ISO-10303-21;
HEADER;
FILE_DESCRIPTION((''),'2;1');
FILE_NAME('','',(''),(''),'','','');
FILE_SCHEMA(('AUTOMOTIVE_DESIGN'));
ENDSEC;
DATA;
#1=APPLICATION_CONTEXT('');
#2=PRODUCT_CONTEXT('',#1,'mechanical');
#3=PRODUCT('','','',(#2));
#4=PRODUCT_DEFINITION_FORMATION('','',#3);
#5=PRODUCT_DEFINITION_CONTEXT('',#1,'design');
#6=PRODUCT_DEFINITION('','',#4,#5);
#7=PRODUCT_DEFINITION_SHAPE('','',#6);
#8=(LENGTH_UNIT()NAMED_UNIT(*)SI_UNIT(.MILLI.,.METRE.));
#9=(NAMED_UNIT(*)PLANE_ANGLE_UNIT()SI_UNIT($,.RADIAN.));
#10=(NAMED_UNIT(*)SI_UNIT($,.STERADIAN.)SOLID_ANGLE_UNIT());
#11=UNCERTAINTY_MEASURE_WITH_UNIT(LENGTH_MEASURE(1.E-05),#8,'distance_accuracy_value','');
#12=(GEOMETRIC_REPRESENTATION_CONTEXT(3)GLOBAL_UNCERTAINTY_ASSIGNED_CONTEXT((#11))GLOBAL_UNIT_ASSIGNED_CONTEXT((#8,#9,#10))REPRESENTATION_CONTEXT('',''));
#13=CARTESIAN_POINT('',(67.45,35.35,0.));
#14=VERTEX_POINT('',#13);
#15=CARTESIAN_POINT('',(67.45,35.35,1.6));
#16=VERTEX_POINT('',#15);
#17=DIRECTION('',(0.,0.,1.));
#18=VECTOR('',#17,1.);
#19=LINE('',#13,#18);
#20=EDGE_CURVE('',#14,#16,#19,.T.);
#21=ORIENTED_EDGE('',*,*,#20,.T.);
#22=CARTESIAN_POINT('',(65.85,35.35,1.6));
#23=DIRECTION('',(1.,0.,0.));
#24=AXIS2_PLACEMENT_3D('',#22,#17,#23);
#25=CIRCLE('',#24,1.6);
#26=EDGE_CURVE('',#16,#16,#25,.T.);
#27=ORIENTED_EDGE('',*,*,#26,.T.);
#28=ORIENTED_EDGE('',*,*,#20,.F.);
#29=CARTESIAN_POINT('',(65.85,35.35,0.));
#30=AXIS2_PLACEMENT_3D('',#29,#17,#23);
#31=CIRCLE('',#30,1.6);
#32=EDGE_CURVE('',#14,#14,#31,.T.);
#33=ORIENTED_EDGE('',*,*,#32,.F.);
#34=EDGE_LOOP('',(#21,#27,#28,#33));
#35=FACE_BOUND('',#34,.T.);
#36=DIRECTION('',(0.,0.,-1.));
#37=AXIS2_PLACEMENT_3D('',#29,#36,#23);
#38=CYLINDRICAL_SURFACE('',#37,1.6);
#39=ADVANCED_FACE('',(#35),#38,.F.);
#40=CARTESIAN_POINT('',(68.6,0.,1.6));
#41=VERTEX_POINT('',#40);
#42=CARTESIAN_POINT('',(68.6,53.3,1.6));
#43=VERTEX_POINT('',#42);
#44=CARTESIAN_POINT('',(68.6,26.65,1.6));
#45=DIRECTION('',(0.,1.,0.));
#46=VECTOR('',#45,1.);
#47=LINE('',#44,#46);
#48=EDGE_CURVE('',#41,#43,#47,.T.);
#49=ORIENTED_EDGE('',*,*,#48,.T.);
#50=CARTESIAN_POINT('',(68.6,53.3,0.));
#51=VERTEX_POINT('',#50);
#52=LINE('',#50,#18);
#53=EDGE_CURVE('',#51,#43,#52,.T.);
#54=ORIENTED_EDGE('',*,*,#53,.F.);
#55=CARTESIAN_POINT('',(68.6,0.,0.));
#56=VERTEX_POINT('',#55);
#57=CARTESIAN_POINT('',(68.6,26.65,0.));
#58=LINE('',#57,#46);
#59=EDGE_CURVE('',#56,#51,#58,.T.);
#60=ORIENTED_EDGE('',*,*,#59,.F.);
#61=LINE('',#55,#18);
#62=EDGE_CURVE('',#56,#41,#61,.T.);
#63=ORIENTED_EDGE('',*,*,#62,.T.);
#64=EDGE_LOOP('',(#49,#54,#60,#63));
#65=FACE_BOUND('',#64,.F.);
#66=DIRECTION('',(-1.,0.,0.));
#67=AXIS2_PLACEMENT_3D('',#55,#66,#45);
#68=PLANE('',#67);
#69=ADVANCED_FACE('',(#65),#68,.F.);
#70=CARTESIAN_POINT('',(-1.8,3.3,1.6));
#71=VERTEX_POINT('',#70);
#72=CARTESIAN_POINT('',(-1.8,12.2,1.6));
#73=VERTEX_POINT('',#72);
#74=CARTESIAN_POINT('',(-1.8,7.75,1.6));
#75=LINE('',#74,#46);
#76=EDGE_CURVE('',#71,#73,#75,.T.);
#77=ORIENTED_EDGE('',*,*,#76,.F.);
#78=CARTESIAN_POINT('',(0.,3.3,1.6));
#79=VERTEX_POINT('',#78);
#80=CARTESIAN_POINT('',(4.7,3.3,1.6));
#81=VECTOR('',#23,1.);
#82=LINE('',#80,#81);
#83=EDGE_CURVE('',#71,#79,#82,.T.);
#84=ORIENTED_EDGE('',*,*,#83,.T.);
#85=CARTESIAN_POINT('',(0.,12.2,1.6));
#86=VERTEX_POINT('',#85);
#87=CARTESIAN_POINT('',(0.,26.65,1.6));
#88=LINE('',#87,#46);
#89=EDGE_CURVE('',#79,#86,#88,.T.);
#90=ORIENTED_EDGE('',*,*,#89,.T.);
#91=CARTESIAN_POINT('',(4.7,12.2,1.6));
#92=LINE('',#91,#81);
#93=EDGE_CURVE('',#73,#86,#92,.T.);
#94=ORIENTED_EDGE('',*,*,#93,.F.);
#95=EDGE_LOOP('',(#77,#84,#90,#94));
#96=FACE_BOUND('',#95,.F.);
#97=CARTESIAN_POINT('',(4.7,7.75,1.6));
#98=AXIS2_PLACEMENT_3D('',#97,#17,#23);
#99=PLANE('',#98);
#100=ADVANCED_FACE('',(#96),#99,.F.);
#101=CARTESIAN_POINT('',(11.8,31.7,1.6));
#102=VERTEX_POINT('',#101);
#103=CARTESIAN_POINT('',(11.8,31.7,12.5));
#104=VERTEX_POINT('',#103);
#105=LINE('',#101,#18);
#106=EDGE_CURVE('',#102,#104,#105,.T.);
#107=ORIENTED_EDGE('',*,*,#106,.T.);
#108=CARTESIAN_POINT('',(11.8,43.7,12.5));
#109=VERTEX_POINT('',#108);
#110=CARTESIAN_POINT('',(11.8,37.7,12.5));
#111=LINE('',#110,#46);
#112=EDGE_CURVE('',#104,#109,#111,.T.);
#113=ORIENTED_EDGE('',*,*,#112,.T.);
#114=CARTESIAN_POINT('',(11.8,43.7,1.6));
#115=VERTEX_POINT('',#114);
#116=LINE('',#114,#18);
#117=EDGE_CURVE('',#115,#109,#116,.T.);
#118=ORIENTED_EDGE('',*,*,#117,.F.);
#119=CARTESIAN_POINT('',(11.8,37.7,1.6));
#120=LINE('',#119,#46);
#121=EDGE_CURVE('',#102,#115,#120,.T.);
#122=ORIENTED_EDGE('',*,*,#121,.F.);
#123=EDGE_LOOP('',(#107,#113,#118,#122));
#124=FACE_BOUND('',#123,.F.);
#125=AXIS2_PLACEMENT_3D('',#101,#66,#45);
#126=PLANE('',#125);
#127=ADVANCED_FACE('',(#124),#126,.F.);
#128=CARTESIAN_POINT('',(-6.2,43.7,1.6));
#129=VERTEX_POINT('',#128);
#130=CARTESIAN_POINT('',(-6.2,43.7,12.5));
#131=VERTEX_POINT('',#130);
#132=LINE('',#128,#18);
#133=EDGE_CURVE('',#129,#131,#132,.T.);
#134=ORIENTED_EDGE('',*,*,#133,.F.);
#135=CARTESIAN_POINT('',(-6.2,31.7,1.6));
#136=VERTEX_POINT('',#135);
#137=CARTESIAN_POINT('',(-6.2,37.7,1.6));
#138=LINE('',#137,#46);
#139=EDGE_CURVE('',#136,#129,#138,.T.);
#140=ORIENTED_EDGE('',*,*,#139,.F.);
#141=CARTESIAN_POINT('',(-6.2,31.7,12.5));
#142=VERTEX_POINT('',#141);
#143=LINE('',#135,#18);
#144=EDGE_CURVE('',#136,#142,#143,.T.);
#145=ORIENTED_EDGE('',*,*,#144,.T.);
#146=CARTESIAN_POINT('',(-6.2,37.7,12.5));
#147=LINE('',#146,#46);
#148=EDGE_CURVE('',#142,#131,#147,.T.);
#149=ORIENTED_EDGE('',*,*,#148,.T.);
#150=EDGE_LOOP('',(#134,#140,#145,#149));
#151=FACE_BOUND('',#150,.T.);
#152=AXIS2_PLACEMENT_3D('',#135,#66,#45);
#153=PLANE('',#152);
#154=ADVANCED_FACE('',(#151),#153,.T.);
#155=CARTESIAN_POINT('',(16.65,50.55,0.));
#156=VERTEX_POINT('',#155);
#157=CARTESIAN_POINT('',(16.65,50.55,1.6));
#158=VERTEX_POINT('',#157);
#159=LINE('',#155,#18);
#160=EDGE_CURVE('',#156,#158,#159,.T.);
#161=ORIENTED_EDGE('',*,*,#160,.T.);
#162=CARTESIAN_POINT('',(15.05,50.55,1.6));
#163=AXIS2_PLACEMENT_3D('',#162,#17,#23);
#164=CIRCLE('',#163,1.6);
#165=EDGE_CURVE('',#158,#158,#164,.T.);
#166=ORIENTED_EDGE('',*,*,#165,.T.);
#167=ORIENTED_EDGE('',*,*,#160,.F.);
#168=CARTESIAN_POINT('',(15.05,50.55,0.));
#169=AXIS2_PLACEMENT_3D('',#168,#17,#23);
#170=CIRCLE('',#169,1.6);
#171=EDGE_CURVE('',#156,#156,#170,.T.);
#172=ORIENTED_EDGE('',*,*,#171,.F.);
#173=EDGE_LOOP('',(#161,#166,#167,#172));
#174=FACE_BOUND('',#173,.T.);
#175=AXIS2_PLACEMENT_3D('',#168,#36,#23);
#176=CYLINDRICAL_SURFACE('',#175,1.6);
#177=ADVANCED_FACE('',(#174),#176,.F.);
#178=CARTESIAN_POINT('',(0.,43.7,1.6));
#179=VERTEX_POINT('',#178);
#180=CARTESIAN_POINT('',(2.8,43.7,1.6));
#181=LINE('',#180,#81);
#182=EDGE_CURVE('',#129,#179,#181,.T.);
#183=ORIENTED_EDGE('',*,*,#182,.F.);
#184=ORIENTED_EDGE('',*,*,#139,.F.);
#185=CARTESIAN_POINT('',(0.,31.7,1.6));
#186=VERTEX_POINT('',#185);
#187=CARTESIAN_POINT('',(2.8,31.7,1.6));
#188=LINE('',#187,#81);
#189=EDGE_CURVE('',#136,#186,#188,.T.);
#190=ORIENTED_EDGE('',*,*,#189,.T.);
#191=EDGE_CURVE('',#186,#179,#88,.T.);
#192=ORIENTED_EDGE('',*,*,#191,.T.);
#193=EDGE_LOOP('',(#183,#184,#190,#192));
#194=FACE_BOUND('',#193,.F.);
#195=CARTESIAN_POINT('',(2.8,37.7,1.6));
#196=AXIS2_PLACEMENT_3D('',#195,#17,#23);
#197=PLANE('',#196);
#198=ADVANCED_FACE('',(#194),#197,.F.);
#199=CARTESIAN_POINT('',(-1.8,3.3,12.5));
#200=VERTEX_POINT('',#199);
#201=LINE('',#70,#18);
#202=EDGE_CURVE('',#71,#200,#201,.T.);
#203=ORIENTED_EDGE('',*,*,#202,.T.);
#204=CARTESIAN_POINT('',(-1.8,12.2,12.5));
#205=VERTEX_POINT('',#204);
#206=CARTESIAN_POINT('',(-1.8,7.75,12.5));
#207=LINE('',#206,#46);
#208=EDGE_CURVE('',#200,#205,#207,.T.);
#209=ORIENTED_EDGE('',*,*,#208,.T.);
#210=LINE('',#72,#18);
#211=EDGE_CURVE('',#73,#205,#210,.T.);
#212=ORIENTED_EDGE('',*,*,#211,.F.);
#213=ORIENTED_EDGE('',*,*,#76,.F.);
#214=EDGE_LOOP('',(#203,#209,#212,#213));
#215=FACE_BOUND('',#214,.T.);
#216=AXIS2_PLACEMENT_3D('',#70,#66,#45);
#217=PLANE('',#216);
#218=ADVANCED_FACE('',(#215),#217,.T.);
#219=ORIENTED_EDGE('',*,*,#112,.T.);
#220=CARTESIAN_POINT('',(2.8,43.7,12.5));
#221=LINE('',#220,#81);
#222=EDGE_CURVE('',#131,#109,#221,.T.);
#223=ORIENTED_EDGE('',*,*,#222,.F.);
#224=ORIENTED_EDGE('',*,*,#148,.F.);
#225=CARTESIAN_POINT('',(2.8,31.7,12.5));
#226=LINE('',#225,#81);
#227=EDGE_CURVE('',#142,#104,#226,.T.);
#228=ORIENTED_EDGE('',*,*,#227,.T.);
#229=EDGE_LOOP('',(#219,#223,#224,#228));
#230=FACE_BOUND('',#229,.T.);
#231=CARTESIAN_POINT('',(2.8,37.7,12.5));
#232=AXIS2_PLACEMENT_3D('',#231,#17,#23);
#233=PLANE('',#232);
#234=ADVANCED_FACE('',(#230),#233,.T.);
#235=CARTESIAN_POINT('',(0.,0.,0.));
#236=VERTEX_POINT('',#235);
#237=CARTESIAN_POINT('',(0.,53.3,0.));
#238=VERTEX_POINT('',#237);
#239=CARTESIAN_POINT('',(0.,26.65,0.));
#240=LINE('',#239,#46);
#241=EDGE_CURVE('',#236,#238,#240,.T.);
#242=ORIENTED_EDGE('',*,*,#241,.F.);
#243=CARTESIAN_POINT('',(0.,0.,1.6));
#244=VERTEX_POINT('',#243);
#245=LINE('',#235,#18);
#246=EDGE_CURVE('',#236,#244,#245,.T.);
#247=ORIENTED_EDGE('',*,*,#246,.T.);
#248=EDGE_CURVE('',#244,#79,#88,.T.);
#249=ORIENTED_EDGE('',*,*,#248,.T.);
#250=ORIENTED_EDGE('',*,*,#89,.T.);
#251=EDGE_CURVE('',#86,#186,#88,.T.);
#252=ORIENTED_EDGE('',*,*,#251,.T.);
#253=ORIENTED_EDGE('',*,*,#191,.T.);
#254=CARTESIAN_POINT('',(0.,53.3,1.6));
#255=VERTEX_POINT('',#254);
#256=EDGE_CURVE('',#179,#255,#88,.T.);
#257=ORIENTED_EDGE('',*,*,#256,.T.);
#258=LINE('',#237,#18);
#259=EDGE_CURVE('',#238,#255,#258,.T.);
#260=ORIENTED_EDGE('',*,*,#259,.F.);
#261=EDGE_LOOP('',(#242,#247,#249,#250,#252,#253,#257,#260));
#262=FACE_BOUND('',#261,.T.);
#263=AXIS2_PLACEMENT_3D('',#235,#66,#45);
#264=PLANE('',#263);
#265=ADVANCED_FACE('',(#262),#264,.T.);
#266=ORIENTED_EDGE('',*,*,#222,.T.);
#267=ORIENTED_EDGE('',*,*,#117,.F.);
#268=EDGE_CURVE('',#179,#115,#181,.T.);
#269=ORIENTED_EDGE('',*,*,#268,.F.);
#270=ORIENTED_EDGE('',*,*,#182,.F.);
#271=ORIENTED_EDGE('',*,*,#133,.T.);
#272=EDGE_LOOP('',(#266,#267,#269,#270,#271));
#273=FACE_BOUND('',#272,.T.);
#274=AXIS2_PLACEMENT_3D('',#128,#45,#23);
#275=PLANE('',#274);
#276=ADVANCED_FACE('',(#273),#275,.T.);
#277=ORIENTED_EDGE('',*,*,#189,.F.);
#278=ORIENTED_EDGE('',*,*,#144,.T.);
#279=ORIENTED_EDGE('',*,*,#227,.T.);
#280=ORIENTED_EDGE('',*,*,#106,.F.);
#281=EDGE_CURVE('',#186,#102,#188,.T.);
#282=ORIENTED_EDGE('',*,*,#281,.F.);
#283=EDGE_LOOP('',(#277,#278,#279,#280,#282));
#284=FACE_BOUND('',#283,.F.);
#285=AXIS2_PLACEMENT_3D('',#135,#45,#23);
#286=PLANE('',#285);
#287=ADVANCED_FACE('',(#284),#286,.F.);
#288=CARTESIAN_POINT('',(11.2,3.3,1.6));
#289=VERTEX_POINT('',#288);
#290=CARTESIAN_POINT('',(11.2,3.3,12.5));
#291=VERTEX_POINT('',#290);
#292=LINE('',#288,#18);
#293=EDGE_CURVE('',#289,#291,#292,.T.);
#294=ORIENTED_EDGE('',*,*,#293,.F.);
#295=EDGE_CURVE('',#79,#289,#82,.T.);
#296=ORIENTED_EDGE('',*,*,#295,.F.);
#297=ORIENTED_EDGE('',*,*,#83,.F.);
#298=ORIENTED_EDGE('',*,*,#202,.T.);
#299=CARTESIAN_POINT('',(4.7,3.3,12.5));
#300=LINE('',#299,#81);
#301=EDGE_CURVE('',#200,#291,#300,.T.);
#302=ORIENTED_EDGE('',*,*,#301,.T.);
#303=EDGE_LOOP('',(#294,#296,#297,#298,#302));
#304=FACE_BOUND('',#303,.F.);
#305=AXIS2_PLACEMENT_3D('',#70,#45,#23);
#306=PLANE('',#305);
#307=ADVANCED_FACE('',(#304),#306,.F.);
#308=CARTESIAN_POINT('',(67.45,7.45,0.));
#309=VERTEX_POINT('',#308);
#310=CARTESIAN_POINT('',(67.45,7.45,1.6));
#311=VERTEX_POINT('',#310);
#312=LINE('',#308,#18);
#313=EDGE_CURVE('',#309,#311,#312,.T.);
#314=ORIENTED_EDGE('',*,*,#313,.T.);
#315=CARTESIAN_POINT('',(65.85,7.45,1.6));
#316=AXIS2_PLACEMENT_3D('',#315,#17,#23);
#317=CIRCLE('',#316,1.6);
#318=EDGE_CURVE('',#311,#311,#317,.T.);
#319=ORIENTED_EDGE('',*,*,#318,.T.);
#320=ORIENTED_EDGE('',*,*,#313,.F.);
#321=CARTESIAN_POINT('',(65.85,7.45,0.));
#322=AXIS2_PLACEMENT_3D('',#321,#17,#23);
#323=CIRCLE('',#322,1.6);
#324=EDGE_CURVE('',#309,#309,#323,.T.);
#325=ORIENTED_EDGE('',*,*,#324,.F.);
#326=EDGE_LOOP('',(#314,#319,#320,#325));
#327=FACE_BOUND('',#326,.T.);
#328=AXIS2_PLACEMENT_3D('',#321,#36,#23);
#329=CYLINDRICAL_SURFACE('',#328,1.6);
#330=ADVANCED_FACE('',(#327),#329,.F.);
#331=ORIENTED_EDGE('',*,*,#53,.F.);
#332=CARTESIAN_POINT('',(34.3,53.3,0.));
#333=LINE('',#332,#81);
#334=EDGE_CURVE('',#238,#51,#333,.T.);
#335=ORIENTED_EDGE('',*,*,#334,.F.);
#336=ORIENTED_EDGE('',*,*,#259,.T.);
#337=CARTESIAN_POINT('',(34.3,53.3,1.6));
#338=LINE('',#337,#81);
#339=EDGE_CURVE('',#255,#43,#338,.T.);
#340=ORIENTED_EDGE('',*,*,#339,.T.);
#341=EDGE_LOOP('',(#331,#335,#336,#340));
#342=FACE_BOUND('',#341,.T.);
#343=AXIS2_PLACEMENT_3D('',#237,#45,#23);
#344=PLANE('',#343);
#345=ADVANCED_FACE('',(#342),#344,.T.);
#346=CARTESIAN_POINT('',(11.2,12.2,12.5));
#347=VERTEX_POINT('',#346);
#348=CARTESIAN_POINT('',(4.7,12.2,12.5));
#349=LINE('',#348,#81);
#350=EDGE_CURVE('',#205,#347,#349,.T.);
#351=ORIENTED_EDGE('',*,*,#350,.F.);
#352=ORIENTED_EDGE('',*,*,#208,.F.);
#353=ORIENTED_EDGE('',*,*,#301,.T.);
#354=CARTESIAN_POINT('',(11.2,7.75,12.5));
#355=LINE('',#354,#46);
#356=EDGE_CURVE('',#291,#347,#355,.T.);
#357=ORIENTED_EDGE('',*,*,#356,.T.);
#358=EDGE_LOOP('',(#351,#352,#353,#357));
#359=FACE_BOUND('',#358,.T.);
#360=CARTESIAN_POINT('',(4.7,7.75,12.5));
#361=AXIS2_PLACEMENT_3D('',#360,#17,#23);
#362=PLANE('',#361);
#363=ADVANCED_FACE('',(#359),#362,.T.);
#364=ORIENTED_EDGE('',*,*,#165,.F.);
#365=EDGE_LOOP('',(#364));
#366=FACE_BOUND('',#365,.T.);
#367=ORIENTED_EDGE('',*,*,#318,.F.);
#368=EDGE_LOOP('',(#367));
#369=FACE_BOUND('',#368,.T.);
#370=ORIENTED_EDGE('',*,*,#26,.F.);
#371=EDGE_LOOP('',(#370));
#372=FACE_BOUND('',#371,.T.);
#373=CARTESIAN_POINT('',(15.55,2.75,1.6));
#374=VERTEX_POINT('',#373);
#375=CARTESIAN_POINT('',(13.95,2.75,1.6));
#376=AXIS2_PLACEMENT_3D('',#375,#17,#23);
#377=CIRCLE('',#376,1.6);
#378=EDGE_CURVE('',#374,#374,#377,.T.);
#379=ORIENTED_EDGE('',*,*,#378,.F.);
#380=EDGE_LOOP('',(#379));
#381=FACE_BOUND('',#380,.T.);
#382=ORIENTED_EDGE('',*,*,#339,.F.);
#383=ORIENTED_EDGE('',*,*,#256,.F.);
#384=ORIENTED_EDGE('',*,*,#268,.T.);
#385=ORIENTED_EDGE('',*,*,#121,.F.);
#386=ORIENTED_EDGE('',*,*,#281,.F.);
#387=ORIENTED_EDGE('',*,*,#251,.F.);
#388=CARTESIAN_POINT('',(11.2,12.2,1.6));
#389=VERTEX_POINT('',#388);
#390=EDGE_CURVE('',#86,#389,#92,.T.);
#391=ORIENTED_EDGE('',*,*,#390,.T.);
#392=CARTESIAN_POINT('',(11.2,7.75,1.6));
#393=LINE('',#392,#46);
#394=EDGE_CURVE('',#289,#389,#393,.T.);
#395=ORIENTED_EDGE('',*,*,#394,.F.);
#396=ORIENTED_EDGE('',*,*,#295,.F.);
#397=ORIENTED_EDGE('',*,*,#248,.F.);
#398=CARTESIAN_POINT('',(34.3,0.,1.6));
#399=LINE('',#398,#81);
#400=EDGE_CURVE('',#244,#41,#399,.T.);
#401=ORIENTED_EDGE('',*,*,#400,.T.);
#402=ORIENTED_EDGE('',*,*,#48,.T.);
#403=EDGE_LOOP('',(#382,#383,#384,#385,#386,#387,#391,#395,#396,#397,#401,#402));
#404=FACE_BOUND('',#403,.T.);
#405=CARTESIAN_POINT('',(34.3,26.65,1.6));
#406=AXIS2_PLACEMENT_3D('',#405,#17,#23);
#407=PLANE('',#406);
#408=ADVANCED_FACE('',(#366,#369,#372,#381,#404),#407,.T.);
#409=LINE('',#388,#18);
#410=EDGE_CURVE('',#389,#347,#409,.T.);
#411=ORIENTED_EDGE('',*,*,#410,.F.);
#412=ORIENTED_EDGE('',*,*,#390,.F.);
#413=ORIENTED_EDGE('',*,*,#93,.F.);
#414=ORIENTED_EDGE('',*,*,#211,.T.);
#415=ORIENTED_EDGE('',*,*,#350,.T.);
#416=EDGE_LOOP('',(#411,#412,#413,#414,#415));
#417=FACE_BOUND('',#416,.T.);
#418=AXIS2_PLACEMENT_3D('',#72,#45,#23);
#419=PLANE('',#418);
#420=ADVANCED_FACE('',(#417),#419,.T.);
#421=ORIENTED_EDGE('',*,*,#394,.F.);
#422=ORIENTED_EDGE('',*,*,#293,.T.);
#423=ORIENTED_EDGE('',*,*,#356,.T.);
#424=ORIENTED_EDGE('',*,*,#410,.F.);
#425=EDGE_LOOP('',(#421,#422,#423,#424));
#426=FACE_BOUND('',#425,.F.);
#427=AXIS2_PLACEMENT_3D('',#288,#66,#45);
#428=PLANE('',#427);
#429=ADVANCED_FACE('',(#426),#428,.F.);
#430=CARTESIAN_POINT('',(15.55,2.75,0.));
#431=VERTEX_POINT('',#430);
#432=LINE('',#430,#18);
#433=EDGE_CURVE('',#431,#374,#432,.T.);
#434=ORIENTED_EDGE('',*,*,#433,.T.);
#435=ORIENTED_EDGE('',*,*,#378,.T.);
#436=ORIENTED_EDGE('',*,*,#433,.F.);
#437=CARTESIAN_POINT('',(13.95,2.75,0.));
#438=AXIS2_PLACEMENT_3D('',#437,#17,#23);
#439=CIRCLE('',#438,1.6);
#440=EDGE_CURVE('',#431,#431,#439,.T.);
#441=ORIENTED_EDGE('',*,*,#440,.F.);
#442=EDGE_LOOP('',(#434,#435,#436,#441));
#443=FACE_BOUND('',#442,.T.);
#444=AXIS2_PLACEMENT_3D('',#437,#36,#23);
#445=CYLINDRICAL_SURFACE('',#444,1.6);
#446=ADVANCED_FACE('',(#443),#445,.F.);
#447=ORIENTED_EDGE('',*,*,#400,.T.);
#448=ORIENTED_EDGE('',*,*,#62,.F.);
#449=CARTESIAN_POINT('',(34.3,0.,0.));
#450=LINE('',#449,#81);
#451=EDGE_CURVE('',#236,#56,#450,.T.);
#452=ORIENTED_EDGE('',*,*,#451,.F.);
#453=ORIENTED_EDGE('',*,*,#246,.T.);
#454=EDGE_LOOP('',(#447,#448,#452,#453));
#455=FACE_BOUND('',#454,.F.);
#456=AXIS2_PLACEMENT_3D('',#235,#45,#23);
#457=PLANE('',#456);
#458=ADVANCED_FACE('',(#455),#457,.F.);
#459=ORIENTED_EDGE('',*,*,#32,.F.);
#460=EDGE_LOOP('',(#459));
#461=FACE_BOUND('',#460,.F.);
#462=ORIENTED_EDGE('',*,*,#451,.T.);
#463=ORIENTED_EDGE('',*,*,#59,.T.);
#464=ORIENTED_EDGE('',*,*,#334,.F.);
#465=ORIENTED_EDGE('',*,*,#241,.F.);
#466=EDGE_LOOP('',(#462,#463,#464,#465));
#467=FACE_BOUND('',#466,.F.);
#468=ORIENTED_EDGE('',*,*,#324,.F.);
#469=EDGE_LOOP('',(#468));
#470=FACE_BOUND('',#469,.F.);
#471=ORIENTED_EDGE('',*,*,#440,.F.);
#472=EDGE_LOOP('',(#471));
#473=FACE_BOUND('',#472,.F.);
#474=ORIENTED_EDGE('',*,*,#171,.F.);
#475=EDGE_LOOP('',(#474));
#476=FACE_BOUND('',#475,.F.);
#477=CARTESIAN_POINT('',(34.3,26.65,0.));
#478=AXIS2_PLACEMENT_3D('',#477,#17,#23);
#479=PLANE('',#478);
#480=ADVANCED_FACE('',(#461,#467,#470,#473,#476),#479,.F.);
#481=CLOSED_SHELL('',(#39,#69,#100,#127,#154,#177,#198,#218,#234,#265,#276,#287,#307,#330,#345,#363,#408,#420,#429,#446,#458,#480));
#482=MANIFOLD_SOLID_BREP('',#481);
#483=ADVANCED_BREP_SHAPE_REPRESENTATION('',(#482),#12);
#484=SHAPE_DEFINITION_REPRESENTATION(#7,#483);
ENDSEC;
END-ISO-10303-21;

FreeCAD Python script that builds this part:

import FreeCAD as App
import Part
import Sketcher

V = App.Vector

doc = App.newDocument("Part")
body = doc.addObject("PartDesign::Body", "Body")

# Sketch on XY plane
sketch1 = doc.addObject("Sketcher::SketchObject", "Sketch")
body.addObject(sketch1)
sketch1.AttachmentSupport = (doc.XY_Plane, [""])
sketch1.MapMode = "FlatFace"
sketch1.addGeometry([
    Part.LineSegment(V(0, 53.3, 0), V(0, 0, 0)),  # 0
    Part.LineSegment(V(0, 0, 0), V(68.6, 0, 0)),  # 1
    Part.LineSegment(V(68.6, 0, 0), V(68.6, 53.3, 0)),  # 2
    Part.LineSegment(V(68.6, 53.3, 0), V(0, 53.3, 0)),  # 3
    Part.Circle(V(13.9, 2.8, 0), V(0, 0, 1), 1.6),  # 4
    Part.Circle(V(65.8, 7.5, 0), V(0, 0, 1), 1.6),  # 5
    Part.Circle(V(15.1, 50.5, 0), V(0, 0, 1), 1.6),  # 6
    Part.Circle(V(65.8, 35.4, 0), V(0, 0, 1), 1.6),  # 7
], False)
sketch1.addConstraint([
    Sketcher.Constraint("Coincident", 0, 2, 1, 1),
    Sketcher.Constraint("Coincident", 1, 2, 2, 1),
    Sketcher.Constraint("Coincident", 2, 2, 3, 1),
    Sketcher.Constraint("Coincident", 3, 2, 0, 1),
    Sketcher.Constraint("Vertical", 0),
    Sketcher.Constraint("Horizontal", 1),
    Sketcher.Constraint("Vertical", 2),
    Sketcher.Constraint("Horizontal", 3),
    Sketcher.Constraint("Coincident", 0, 2, -1, 1),
    Sketcher.Constraint("Equal", 4, 5),
    Sketcher.Constraint("Equal", 5, 6),
    Sketcher.Constraint("Equal", 6, 7),
    Sketcher.Constraint("Vertical", 5, 3, 7, 3),
    Sketcher.Constraint("Diameter", 4, 3.2),
    Sketcher.Constraint("DistanceX", 1, 1, 1, 2, 68.6),
    Sketcher.Constraint("DistanceY", 0, 2, 0, 1, 53.3),
    Sketcher.Constraint("DistanceX", 4, 3, 5, 3, 51.9),
    Sketcher.Constraint("DistanceY", 4, 3, 5, 3, 4.7),
    Sketcher.Constraint("DistanceX", 4, 3, 6, 3, 1.1),
    Sketcher.Constraint("DistanceY", 4, 3, 6, 3, 47.8),
    Sketcher.Constraint("DistanceY", 5, 3, 7, 3, 27.9),
    Sketcher.Constraint("DistanceX", -1, 1, 4, 3, 13.95),
    Sketcher.Constraint("DistanceY", -1, 1, 4, 3, 2.75),
])
pad1 = doc.addObject("PartDesign::Pad", "Pad")
body.addObject(pad1)
pad1.Profile = sketch1
pad1.Length = 1.6

# Sketch on XY plane
sketch2 = doc.addObject("Sketcher::SketchObject", "Sketch001")
body.addObject(sketch2)
sketch2.AttachmentSupport = (doc.XY_Plane, [""])
sketch2.MapMode = "FlatFace"
sketch2.AttachmentOffset = App.Placement(V(0, 0, 1.6), App.Rotation())
sketch2.addGeometry([
    Part.LineSegment(V(-2, 12, 0), V(-2, 3, 0)),  # 0
    Part.LineSegment(V(-2, 3, 0), V(11, 3, 0)),  # 1
    Part.LineSegment(V(11, 3, 0), V(11, 12, 0)),  # 2
    Part.LineSegment(V(11, 12, 0), V(-2, 12, 0)),  # 3
    Part.LineSegment(V(-6, 44, 0), V(-6, 32, 0)),  # 4
    Part.LineSegment(V(-6, 32, 0), V(12, 32, 0)),  # 5
    Part.LineSegment(V(12, 32, 0), V(12, 44, 0)),  # 6
    Part.LineSegment(V(12, 44, 0), V(-6, 44, 0)),  # 7
], False)
sketch2.addConstraint([
    Sketcher.Constraint("Coincident", 0, 2, 1, 1),
    Sketcher.Constraint("Coincident", 1, 2, 2, 1),
    Sketcher.Constraint("Coincident", 2, 2, 3, 1),
    Sketcher.Constraint("Coincident", 3, 2, 0, 1),
    Sketcher.Constraint("Coincident", 4, 2, 5, 1),
    Sketcher.Constraint("Coincident", 5, 2, 6, 1),
    Sketcher.Constraint("Coincident", 6, 2, 7, 1),
    Sketcher.Constraint("Coincident", 7, 2, 4, 1),
    Sketcher.Constraint("Vertical", 0),
    Sketcher.Constraint("Horizontal", 1),
    Sketcher.Constraint("Vertical", 2),
    Sketcher.Constraint("Horizontal", 3),
    Sketcher.Constraint("Vertical", 4),
    Sketcher.Constraint("Horizontal", 5),
    Sketcher.Constraint("Vertical", 6),
    Sketcher.Constraint("Horizontal", 7),
    Sketcher.Constraint("DistanceX", 1, 1, 1, 2, 13.0),
    Sketcher.Constraint("DistanceX", 5, 1, 5, 2, 18.0),
    Sketcher.Constraint("DistanceY", 4, 2, 4, 1, 12.0),
    Sketcher.Constraint("DistanceY", 0, 2, 0, 1, 8.9),
    Sketcher.Constraint("DistanceX", 0, 2, -1, 1, 1.8),
    Sketcher.Constraint("DistanceY", -1, 1, 0, 2, 3.3),
    Sketcher.Constraint("DistanceX", 4, 2, -1, 1, 6.2),
    Sketcher.Constraint("DistanceY", -1, 1, 4, 2, 31.7),
])
pad2 = doc.addObject("PartDesign::Pad", "Pad001")
body.addObject(pad2)
pad2.Profile = sketch2
pad2.Length = 10.9

doc.recompute()
